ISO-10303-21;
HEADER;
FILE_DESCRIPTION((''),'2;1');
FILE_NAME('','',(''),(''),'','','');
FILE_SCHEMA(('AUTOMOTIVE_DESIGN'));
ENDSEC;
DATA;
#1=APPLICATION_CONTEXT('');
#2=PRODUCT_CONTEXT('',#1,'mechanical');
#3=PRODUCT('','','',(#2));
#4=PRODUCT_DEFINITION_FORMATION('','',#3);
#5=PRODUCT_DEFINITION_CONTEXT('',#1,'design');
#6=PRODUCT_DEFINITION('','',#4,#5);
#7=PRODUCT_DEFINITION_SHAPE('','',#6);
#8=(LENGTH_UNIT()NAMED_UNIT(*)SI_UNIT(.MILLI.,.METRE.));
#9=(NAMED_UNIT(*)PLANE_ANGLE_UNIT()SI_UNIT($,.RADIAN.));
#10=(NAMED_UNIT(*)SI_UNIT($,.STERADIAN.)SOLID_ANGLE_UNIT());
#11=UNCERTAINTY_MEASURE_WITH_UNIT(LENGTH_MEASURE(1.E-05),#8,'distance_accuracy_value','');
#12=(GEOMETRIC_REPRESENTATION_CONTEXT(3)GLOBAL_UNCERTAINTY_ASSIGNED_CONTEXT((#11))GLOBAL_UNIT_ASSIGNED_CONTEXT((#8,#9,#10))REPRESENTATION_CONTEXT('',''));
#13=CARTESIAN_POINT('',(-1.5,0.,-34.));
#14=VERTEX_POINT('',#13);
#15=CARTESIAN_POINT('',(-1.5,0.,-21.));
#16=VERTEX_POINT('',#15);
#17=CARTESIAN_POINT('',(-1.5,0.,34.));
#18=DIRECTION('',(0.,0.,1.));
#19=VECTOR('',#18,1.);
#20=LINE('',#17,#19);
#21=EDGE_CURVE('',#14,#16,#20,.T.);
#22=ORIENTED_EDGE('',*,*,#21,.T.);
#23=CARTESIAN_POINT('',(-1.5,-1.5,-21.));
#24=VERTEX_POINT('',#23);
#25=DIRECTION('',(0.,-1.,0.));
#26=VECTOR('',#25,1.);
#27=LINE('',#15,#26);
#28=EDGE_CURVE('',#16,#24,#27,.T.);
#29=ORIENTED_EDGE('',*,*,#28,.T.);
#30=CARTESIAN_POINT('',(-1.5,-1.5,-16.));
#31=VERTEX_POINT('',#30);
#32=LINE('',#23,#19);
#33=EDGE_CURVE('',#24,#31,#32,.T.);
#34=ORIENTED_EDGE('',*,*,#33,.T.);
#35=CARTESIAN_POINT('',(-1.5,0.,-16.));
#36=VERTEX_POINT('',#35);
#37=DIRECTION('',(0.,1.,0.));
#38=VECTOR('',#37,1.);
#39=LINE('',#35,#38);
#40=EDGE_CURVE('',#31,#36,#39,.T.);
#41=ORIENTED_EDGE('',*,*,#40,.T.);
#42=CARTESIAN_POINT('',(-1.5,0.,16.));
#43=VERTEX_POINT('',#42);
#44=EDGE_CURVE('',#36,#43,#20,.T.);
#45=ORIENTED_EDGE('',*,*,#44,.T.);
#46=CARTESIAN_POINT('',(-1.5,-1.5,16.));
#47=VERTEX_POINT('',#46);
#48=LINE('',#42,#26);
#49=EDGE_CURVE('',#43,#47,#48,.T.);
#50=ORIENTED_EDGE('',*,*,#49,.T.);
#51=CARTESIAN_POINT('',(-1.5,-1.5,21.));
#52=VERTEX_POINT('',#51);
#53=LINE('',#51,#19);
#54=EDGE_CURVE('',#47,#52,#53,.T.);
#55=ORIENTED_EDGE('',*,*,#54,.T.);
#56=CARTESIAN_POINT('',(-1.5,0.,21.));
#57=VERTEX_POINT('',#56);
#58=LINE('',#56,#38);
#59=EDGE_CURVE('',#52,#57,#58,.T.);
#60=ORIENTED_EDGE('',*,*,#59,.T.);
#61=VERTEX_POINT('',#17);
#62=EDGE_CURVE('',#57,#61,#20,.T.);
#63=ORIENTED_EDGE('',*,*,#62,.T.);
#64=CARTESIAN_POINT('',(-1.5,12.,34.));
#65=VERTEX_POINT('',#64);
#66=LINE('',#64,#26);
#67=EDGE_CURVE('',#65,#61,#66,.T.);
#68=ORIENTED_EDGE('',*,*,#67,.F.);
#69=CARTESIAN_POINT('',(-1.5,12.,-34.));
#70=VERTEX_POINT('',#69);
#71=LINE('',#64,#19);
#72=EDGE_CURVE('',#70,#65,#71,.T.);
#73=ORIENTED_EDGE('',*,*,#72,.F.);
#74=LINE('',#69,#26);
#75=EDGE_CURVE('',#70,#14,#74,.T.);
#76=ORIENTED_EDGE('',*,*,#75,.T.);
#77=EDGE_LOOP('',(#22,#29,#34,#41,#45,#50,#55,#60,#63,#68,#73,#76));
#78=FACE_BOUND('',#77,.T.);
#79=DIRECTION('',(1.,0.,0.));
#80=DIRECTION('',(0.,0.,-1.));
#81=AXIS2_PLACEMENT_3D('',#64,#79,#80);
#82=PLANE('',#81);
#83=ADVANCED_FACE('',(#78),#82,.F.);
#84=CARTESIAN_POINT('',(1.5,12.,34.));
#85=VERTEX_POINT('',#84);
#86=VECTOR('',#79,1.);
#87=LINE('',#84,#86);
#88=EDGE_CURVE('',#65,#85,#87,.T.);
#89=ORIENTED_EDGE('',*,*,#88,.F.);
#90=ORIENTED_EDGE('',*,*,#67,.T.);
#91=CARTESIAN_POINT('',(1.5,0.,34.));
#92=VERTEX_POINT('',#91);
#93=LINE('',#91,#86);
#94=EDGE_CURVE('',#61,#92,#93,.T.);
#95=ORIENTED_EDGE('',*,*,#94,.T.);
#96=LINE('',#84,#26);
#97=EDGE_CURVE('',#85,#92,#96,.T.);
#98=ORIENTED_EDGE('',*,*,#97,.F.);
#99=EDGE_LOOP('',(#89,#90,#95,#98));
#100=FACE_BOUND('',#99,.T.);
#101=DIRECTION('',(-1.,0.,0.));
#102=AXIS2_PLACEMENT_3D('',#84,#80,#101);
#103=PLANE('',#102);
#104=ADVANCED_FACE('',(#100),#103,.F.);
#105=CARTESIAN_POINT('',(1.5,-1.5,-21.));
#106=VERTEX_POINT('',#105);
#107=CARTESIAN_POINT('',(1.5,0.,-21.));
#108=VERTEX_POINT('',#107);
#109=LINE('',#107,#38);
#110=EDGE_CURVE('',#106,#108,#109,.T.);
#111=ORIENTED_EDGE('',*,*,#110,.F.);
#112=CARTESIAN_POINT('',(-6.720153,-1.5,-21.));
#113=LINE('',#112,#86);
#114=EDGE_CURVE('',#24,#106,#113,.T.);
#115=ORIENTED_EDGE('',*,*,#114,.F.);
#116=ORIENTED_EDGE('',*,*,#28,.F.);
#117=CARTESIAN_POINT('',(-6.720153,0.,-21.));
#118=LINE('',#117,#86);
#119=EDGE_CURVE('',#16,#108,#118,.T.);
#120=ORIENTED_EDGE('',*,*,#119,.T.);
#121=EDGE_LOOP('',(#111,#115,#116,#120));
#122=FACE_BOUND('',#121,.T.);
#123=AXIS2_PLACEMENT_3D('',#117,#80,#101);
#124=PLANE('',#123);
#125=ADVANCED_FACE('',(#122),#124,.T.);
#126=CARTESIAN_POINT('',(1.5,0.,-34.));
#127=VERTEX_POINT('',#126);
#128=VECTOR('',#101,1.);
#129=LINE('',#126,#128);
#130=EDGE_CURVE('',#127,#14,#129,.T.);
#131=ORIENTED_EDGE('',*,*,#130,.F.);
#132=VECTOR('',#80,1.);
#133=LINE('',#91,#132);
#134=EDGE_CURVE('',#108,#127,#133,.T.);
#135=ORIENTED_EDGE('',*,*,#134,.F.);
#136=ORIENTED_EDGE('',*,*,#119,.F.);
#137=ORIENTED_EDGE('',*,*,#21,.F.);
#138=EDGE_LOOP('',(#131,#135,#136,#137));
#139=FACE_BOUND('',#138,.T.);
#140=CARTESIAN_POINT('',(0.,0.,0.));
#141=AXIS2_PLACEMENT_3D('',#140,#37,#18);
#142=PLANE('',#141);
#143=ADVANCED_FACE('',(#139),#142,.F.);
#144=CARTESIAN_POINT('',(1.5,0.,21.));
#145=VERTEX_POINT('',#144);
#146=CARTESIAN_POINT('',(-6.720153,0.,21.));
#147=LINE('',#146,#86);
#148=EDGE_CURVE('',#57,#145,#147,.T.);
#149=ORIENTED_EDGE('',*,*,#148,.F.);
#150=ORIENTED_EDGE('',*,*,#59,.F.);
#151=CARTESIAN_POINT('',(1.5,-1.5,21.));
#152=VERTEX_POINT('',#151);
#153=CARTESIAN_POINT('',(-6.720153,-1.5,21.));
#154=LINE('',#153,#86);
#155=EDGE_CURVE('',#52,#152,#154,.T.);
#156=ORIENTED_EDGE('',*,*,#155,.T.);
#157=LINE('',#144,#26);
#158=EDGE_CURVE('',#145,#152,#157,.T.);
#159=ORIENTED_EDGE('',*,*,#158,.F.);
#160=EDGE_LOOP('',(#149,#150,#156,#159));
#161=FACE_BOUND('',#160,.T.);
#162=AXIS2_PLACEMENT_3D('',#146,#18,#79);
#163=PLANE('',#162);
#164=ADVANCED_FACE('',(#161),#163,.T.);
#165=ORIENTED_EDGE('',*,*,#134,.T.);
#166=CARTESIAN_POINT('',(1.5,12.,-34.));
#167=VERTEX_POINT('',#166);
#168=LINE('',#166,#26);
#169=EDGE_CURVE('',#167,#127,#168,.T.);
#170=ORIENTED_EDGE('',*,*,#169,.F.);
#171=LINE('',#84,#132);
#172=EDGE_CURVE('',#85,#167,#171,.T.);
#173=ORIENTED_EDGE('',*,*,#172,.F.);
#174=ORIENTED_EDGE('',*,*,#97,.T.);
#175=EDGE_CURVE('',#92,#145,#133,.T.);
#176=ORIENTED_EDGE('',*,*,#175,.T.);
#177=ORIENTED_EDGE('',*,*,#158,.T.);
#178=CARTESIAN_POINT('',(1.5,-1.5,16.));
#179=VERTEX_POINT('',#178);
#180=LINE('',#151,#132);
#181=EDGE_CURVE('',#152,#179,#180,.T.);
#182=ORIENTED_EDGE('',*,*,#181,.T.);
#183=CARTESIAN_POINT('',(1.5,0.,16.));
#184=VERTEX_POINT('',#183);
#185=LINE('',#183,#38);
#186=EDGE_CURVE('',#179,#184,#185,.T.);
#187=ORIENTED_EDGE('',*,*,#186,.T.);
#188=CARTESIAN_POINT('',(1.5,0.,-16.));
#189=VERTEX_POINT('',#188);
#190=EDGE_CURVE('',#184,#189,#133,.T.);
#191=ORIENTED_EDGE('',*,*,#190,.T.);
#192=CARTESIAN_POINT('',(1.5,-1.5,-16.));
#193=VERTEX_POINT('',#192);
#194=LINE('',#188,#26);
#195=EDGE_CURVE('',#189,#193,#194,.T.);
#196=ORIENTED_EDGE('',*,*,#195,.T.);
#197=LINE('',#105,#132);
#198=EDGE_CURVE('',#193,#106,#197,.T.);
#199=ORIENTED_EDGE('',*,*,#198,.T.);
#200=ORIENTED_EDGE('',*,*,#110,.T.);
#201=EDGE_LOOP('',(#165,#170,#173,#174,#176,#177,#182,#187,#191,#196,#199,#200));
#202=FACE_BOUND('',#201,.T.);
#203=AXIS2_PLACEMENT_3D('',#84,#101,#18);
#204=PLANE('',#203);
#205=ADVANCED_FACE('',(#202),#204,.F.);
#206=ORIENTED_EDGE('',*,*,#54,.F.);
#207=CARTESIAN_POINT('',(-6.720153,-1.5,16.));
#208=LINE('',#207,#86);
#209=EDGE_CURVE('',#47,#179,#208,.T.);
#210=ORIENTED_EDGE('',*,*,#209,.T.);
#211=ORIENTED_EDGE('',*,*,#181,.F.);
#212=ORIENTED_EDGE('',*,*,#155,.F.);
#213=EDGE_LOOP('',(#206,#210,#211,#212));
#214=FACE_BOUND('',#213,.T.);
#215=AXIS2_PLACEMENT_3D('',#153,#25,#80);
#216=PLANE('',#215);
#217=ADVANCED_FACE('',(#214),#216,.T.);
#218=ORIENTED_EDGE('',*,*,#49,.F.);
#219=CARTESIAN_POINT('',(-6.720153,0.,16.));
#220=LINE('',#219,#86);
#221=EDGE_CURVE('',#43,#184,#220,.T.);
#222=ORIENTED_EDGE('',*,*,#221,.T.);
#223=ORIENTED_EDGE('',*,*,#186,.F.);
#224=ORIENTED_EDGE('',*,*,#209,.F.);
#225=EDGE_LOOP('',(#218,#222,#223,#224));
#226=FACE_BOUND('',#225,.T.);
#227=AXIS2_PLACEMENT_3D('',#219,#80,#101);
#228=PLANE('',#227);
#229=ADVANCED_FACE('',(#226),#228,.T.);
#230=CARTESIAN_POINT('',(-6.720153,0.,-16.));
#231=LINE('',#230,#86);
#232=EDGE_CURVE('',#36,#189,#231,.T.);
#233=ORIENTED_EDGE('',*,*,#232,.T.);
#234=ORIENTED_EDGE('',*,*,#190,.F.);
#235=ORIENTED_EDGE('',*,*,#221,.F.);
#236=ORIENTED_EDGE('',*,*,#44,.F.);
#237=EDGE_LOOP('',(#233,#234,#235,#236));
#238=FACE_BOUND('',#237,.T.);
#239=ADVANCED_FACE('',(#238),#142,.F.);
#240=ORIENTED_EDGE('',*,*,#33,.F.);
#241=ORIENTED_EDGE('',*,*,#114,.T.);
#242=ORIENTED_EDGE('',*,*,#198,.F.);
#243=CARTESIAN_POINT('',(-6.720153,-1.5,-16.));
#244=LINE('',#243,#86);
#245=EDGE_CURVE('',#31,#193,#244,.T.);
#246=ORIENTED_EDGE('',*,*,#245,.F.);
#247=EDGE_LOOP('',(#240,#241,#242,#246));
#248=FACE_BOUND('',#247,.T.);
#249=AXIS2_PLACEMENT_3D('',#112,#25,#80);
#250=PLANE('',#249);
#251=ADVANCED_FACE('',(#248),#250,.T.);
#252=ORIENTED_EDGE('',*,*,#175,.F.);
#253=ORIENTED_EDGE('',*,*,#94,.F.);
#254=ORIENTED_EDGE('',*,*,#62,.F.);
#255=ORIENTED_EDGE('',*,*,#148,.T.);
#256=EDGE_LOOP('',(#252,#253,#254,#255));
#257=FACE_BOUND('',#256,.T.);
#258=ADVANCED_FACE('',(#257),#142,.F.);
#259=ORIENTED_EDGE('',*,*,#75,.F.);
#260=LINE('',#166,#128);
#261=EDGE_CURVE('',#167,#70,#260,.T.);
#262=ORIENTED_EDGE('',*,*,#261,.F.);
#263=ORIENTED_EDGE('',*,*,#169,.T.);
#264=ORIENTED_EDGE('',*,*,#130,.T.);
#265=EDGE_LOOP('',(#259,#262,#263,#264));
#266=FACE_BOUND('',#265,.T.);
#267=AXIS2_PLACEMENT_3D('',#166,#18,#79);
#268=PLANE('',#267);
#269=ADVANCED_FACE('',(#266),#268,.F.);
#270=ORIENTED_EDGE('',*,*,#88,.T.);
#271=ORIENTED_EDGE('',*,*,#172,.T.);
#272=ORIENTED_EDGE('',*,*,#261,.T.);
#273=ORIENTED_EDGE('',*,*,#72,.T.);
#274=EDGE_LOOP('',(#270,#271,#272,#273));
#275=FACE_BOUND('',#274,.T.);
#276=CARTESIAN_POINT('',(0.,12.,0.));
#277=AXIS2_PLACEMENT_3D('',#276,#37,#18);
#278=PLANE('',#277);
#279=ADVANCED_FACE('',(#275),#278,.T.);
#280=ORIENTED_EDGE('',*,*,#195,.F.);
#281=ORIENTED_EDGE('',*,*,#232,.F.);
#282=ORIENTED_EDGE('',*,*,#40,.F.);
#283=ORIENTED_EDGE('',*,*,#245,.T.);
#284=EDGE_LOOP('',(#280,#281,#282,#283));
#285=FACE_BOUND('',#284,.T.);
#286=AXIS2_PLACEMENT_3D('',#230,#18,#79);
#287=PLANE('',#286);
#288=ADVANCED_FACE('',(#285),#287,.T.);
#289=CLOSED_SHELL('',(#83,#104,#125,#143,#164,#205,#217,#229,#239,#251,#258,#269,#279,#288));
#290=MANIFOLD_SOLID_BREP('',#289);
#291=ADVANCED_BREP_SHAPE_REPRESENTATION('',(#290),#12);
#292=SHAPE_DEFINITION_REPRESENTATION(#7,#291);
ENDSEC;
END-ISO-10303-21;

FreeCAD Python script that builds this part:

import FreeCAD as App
import Part
import Sketcher

doc = App.newDocument("Part")
body = doc.addObject("PartDesign::Body", "Body")

# Sketch on XZ plane
sketch1 = body.newObject("Sketcher::SketchObject", "Sketch")
sketch1.AttachmentSupport = (doc.getObject("XZ_Plane"), [""])
sketch1.MapMode = "FlatFace"
sketch1.addGeometry([
    Part.LineSegment(App.Vector(-1.5, -34, 0), App.Vector(-1.5, 34, 0)),
    Part.LineSegment(App.Vector(-1.5, 34, 0), App.Vector(1.5, 34, 0)),
    Part.LineSegment(App.Vector(1.5, 34, 0), App.Vector(1.5, -34, 0)),
    Part.LineSegment(App.Vector(1.5, -34, 0), App.Vector(-1.5, -34, 0)),
], False)
sketch1.addConstraint([
    Sketcher.Constraint("Coincident", 0, 2, 1, 1),
    Sketcher.Constraint("Coincident", 1, 2, 2, 1),
    Sketcher.Constraint("Coincident", 2, 2, 3, 1),
    Sketcher.Constraint("Coincident", 3, 2, 0, 1),
    Sketcher.Constraint("Vertical", 0),
    Sketcher.Constraint("Horizontal", 1),
    Sketcher.Constraint("Vertical", 2),
    Sketcher.Constraint("Horizontal", 3),
    Sketcher.Constraint("Symmetric", 0, 2, 2, 2, -1, 1),
    Sketcher.Constraint("DistanceX", 1, 1, 1, 2, 3.0),
    Sketcher.Constraint("DistanceY", 0, 1, 0, 2, 68.0),
])
pad1 = body.newObject("PartDesign::Pad", "Pad")
pad1.Profile = sketch1
pad1.Length = 12
pad1.Reversed = True

# Sketch on YZ plane
sketch2 = body.newObject("Sketcher::SketchObject", "Sketch001")
sketch2.AttachmentSupport = (doc.getObject("YZ_Plane"), [""])
sketch2.MapMode = "FlatFace"
sketch2.AttachmentOffset = App.Placement(App.Vector(0, 0, 1.5), App.Rotation())
sketch2.addGeometry([
    Part.LineSegment(App.Vector(0, 21, 0), App.Vector(-1.5, 21, 0)),  # 0
    Part.LineSegment(App.Vector(-1.5, 21, 0), App.Vector(-1.5, 16, 0)),  # 1
    Part.LineSegment(App.Vector(-1.5, 16, 0), App.Vector(0, 16, 0)),  # 2
    Part.LineSegment(App.Vector(0, 16, 0), App.Vector(0, 21, 0)),  # 3
    Part.LineSegment(App.Vector(0, -16, 0), App.Vector(-1.5, -16, 0)),  # 4
    Part.LineSegment(App.Vector(-1.5, -16, 0), App.Vector(-1.5, -21, 0)),  # 5
    Part.LineSegment(App.Vector(-1.5, -21, 0), App.Vector(0, -21, 0)),  # 6
    Part.LineSegment(App.Vector(0, -21, 0), App.Vector(0, -16, 0)),  # 7
], False)
sketch2.addConstraint([
    Sketcher.Constraint("Coincident", 0, 2, 1, 1),
    Sketcher.Constraint("Coincident", 1, 2, 2, 1),
    Sketcher.Constraint("Coincident", 2, 2, 3, 1),
    Sketcher.Constraint("Coincident", 3, 2, 0, 1),
    Sketcher.Constraint("Coincident", 4, 2, 5, 1),
    Sketcher.Constraint("Coincident", 5, 2, 6, 1),
    Sketcher.Constraint("Coincident", 6, 2, 7, 1),
    Sketcher.Constraint("Coincident", 7, 2, 4, 1),
    Sketcher.Constraint("Horizontal", 0),
    Sketcher.Constraint("Vertical", 1),
    Sketcher.Constraint("Horizontal", 2),
    Sketcher.Constraint("Vertical", 3),
    Sketcher.Constraint("Horizontal", 4),
    Sketcher.Constraint("Vertical", 5),
    Sketcher.Constraint("Horizontal", 6),
    Sketcher.Constraint("Vertical", 7),
    Sketcher.Constraint("Symmetric", 3, 2, 6, 2, -1, 1),
    Sketcher.Constraint("Symmetric", 1, 2, 4, 2, -1),
    Sketcher.Constraint("PointOnObject", 2, 2, -2),
    Sketcher.Constraint("DistanceY", 1, 2, 1, 1, 5.0),
    Sketcher.Constraint("DistanceX", 0, 2, 0, 1, 1.5),
    Sketcher.Constraint("DistanceY", -1, 1, 0, 2, 21.0),
])
pad2 = body.newObject("PartDesign::Pad", "Pad001")
pad2.Profile = sketch2
pad2.Length = 3
pad2.Reversed = True

doc.recompute()
